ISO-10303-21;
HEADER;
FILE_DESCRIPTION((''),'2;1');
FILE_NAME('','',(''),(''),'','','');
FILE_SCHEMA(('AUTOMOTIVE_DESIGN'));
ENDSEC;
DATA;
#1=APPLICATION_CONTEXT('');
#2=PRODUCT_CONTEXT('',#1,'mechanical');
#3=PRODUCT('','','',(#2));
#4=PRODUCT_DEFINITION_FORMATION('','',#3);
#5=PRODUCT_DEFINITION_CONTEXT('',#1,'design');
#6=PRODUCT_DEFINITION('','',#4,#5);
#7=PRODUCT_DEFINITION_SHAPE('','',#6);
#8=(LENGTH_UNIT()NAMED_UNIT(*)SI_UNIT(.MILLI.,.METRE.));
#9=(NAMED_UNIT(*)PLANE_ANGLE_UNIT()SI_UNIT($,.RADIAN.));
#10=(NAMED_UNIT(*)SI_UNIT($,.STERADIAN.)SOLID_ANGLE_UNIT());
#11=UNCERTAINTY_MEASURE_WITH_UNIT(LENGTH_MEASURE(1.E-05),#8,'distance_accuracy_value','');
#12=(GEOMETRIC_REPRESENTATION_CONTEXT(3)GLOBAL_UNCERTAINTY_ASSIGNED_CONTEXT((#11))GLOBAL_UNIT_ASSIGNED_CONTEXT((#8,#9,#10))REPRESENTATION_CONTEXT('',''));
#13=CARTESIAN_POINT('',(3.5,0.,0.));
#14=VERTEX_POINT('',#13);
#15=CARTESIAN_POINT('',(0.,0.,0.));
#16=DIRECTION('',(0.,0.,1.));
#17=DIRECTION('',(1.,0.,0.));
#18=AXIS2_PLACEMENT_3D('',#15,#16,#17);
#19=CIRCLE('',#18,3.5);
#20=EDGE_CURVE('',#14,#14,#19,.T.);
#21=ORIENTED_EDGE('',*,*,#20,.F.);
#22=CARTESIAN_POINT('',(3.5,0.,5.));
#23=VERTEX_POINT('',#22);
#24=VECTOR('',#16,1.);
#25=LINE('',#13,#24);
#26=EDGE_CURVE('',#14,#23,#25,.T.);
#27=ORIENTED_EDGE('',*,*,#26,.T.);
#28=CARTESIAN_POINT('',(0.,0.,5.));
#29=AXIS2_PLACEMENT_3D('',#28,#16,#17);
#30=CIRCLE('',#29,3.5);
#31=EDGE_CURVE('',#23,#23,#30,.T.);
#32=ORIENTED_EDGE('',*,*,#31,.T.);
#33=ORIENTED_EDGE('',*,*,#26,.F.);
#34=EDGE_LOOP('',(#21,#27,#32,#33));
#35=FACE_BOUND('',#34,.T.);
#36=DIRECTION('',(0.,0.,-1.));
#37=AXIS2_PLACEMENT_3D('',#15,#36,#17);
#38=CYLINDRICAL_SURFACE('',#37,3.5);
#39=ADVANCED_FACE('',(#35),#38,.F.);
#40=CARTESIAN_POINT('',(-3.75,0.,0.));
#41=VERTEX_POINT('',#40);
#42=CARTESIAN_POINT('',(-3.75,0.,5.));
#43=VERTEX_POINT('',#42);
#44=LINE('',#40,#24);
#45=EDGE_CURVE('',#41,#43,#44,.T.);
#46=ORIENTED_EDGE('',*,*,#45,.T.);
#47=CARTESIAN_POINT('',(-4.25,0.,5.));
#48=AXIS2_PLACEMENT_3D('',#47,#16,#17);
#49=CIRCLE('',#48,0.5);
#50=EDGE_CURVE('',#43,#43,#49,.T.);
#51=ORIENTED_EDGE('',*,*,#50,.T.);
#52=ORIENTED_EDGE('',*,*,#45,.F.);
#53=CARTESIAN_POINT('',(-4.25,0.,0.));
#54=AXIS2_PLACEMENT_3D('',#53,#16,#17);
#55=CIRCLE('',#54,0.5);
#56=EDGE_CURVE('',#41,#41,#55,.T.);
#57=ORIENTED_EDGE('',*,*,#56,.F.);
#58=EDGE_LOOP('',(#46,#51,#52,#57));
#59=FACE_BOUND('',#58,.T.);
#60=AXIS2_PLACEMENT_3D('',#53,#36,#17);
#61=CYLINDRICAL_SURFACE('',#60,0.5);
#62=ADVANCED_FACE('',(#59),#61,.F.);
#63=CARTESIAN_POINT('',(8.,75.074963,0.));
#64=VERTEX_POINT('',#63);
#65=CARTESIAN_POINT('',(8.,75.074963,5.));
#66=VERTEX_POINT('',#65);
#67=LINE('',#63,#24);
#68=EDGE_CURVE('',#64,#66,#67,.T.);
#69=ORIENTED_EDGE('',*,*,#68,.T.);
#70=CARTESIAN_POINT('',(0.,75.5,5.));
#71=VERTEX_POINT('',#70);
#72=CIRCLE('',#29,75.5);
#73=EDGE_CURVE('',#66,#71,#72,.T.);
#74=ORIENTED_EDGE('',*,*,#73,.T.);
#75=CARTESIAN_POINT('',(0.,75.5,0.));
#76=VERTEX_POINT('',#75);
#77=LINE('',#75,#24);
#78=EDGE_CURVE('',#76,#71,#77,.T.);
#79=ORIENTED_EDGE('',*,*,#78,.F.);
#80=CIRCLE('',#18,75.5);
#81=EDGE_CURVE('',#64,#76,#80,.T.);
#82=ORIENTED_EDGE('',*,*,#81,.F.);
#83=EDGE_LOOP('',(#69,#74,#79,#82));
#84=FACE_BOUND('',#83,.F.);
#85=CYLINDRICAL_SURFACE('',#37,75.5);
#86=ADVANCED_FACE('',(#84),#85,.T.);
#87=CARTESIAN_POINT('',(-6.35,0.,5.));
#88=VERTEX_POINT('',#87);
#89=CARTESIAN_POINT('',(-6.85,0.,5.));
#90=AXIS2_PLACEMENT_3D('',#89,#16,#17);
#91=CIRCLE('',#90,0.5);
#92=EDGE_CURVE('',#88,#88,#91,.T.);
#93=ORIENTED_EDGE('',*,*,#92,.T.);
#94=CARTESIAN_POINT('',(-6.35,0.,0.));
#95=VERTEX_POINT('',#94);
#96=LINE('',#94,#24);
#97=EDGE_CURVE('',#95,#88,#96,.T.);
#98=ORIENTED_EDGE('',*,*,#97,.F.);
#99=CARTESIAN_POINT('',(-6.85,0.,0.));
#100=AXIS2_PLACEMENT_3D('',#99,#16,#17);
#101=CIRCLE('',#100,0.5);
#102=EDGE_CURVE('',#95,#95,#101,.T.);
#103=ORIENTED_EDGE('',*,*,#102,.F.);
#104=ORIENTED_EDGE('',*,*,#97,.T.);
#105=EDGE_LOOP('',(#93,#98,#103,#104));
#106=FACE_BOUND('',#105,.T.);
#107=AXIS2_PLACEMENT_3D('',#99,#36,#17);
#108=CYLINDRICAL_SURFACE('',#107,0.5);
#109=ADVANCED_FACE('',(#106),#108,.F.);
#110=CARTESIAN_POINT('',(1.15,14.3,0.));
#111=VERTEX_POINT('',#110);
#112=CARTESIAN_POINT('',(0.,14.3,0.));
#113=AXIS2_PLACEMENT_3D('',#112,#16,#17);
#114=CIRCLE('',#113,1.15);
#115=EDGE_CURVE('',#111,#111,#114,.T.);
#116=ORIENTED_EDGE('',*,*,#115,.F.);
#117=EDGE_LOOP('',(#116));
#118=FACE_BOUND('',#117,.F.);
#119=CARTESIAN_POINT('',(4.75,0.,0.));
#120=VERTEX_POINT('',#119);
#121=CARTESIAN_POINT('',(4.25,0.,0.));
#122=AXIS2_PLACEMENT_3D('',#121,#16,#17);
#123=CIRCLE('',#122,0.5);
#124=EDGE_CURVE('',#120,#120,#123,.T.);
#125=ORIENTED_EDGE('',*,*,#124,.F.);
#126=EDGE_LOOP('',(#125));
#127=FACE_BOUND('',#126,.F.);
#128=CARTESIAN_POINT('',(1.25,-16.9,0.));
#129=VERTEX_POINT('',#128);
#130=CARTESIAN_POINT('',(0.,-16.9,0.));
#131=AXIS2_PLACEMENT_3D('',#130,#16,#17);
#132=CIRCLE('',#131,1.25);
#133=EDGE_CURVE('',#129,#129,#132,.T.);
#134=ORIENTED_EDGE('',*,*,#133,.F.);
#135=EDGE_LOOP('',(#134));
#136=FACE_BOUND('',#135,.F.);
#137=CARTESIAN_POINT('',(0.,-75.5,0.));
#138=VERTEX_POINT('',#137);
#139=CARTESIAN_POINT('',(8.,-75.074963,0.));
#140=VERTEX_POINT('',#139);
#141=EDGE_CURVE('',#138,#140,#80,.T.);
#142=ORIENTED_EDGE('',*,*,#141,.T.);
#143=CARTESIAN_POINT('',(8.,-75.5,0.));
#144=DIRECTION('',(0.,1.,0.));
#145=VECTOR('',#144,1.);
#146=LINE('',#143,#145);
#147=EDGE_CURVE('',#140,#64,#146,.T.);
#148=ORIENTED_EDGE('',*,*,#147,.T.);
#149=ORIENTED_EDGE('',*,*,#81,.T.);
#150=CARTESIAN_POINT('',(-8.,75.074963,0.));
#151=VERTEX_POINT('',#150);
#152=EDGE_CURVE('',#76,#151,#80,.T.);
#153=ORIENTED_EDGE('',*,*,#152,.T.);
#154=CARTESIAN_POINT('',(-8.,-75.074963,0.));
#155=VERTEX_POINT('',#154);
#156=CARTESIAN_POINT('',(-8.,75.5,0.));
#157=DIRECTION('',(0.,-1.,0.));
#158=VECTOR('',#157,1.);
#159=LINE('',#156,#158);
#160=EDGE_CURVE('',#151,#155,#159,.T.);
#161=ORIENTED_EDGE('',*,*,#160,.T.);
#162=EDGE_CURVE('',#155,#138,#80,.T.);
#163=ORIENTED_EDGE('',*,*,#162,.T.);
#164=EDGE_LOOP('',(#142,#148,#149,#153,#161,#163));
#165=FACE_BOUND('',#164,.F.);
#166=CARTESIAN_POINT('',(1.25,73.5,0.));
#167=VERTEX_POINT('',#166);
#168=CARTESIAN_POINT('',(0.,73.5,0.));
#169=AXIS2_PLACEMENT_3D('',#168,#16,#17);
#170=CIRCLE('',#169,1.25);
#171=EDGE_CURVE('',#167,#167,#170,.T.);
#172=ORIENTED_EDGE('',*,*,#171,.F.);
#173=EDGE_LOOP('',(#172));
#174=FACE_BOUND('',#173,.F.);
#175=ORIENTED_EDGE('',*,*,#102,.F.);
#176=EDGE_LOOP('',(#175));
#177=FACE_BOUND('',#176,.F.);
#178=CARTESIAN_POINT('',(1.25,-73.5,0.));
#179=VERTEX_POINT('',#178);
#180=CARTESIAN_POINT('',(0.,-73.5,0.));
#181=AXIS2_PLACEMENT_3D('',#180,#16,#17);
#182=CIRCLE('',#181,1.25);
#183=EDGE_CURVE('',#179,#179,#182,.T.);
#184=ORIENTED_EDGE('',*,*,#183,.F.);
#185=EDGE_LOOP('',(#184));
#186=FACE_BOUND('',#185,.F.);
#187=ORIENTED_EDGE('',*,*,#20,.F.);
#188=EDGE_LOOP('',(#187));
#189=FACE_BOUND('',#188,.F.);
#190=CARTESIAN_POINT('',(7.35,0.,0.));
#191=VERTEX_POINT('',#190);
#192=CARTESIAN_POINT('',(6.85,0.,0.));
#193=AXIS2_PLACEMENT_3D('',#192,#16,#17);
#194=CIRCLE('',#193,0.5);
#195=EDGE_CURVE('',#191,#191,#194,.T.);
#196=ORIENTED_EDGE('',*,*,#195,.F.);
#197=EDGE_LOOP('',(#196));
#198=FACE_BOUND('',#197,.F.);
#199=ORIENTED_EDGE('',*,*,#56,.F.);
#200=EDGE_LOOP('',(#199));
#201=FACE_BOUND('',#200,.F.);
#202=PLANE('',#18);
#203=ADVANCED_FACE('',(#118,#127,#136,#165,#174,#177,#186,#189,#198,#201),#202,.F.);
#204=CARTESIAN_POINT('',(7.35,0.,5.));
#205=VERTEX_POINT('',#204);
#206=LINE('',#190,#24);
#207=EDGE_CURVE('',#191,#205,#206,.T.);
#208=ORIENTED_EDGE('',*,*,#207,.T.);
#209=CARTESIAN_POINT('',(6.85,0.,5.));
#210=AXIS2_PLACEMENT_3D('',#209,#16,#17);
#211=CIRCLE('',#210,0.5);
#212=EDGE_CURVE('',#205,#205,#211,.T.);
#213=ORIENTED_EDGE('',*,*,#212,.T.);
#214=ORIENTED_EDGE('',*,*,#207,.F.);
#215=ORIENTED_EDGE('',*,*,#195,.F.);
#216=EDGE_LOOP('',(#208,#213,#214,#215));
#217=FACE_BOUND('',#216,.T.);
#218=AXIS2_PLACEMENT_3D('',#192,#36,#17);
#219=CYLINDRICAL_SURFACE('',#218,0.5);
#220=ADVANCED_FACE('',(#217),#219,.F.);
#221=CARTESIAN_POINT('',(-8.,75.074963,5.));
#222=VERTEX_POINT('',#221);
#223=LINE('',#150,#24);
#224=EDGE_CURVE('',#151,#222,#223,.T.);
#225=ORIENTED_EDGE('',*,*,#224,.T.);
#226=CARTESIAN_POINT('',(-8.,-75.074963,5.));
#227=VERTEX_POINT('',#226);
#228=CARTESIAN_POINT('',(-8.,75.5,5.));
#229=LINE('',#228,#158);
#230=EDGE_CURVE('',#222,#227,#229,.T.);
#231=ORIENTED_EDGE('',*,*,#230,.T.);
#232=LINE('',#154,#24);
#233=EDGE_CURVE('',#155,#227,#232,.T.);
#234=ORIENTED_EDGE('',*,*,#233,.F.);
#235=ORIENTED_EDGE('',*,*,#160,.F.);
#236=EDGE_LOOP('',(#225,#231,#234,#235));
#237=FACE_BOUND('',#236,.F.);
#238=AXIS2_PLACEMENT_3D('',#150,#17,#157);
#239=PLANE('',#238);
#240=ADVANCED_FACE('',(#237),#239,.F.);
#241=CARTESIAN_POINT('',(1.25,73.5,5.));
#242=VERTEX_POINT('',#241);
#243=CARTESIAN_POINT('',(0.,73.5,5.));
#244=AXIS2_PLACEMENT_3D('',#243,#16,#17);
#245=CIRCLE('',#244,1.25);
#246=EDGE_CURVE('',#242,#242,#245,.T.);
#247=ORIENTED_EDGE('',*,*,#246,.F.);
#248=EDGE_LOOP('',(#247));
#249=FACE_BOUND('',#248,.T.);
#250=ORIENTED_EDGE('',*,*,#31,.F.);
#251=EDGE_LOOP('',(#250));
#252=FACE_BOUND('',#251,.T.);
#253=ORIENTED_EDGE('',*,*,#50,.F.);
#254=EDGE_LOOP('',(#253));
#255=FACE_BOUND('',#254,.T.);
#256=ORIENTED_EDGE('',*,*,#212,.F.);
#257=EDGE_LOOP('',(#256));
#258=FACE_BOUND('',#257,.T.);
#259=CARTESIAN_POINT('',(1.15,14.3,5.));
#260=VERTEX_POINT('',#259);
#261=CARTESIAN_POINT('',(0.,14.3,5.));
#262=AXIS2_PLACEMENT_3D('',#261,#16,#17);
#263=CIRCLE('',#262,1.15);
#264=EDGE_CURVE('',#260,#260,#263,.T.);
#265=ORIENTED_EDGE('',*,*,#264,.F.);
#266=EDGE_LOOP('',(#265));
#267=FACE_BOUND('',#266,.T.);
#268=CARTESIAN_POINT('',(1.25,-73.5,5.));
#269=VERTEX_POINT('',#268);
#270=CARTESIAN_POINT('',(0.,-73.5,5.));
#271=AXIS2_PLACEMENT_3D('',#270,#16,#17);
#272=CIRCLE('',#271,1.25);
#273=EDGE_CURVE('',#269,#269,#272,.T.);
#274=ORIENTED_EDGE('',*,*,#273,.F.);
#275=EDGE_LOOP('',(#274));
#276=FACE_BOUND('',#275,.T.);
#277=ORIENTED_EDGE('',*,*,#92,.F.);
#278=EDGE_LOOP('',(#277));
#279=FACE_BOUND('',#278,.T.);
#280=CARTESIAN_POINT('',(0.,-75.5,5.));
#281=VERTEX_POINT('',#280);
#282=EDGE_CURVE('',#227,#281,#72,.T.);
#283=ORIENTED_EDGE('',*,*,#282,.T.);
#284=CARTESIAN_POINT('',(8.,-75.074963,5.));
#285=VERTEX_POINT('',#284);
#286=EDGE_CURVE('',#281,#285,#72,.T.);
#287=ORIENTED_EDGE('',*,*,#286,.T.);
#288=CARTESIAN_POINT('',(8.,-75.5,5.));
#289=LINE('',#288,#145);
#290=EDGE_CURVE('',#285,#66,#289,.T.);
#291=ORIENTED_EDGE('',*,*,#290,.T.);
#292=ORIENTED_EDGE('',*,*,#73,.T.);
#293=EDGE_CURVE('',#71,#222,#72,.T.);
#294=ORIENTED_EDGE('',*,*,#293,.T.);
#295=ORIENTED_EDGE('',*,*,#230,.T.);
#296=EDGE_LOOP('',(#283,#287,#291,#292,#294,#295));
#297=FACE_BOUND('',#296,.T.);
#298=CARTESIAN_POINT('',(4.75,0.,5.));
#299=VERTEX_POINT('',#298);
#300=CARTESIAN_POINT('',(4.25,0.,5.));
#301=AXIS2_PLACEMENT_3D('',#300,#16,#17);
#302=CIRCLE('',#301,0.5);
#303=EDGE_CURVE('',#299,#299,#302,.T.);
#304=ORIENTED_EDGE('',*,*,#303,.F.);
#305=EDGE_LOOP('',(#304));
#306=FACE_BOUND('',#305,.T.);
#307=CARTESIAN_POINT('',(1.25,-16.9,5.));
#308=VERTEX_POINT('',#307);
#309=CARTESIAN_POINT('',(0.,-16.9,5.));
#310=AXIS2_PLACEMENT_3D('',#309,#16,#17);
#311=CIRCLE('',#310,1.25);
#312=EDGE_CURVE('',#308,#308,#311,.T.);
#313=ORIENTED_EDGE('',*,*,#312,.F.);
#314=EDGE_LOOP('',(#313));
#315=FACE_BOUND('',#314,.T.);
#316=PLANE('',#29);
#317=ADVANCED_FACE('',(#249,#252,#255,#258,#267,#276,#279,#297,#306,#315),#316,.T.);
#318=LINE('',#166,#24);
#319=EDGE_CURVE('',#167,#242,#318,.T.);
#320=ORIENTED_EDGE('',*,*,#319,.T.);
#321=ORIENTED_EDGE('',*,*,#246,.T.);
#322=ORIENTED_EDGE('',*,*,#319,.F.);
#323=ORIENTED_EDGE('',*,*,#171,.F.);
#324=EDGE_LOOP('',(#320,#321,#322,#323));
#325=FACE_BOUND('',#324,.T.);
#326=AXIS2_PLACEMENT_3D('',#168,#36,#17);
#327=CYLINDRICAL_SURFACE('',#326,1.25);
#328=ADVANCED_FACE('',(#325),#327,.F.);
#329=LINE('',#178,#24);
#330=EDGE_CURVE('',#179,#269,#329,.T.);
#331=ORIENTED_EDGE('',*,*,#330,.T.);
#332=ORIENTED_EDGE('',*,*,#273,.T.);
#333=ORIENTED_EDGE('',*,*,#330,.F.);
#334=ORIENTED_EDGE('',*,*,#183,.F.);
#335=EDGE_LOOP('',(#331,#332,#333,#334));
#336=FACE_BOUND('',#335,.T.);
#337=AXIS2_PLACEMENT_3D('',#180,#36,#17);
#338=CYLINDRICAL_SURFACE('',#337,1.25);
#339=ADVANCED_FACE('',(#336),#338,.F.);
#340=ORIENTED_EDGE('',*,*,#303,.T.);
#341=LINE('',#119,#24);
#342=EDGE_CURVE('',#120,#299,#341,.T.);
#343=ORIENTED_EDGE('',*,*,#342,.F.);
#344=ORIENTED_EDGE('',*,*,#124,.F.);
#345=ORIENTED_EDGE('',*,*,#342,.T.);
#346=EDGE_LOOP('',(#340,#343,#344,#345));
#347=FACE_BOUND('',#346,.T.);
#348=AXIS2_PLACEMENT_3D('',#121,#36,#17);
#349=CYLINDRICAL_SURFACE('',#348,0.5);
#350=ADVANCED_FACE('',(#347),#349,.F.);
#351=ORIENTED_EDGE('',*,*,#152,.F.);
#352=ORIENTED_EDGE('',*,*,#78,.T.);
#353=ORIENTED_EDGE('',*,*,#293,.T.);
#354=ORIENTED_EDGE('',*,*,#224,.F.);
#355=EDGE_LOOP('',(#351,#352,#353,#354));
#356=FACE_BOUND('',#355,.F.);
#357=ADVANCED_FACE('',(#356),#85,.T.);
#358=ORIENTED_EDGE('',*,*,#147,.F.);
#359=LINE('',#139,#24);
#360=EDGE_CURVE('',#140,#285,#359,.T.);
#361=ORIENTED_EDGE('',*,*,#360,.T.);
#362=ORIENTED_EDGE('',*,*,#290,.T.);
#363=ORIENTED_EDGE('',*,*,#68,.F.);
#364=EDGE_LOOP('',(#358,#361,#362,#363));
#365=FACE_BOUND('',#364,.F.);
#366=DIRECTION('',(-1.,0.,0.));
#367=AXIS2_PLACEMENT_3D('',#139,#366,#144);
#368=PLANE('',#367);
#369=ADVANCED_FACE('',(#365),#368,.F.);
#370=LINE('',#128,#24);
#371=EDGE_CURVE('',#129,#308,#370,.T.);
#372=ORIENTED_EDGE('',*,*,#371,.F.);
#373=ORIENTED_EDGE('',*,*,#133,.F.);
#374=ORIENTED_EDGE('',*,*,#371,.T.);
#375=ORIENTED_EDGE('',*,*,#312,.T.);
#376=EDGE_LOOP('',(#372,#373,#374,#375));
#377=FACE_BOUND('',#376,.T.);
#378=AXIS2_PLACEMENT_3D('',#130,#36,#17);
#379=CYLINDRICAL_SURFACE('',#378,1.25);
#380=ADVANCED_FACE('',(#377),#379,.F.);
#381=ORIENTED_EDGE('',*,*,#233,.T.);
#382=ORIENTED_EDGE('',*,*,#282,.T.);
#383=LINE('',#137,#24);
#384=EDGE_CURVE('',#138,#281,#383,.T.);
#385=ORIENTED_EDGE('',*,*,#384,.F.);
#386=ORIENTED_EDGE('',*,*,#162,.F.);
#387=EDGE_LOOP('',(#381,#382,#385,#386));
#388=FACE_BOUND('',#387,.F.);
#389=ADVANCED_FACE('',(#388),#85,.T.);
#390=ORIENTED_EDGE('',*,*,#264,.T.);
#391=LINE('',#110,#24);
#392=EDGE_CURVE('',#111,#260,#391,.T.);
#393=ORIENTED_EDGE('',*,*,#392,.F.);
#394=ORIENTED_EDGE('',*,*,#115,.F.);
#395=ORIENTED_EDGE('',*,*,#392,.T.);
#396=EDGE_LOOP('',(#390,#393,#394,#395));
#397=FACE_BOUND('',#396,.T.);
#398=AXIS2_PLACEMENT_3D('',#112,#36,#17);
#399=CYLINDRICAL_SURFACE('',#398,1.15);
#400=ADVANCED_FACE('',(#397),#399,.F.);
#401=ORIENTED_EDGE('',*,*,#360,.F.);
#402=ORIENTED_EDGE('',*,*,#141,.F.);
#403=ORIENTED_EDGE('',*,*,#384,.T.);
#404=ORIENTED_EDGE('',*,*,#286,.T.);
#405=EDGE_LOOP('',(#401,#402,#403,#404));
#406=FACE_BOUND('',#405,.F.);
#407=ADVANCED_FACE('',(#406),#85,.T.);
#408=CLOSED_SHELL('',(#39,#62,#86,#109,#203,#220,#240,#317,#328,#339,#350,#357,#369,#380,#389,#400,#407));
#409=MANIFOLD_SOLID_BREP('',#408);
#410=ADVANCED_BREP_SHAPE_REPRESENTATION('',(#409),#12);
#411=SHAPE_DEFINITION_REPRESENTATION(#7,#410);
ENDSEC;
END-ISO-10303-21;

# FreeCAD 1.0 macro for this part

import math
import FreeCAD as App
import Part
import Sketcher
from FreeCAD import Vector

doc = App.newDocument("Part")
params = doc.addObject("Spreadsheet::Sheet", "Params")
for row, (alias, value) in enumerate([
    ("sketch1_diameter", "1 mm"),
    ("sketch1_diameter2", "7 mm"),
    ("sketch1_diameter3", "2.5 mm"),
    ("sketch1_diameter4", "2.3 mm"),
    ("sketch1_radius", "75.5 mm"),
    ("pad1_length", "5 mm"),
], start=1):
    params.set(f"A{row}", alias)
    params.set(f"B{row}", "=" + value)
    params.setAlias(f"B{row}", alias)

body = doc.addObject("PartDesign::Body", "Body")

# Sketch on XY plane
sketch1 = body.newObject("Sketcher::SketchObject", "Sketch")
sketch1.AttachmentSupport = (doc.getObject("XY_Plane"), [""])
sketch1.MapMode = "FlatFace"
sketch1.addGeometry(Part.ArcOfCircle(Part.Circle(Vector(0, 0, 0), Vector(0, 0, 1), 75.5), math.radians(-96.08), math.radians(-83.92)), False)
sketch1.addGeometry(Part.LineSegment(Vector(8, -75.1, 0), Vector(8, 75.1, 0)), False)
sketch1.addGeometry(Part.ArcOfCircle(Part.Circle(Vector(0, 0, 0), Vector(0, 0, 1), 75.5), math.radians(83.92), math.radians(96.08)), False)
sketch1.addGeometry(Part.LineSegment(Vector(-8, 75.1, 0), Vector(-8, -75.1, 0)), False)
sketch1.addGeometry(Part.Circle(Vector(0, -73.5, 0), Vector(0, 0, 1), 1.2), False)
sketch1.addGeometry(Part.Circle(Vector(0, -16.9, 0), Vector(0, 0, 1), 1.2), False)
sketch1.addGeometry(Part.Circle(Vector(-6.8, 0, 0), Vector(0, 0, 1), 0.5), False)
sketch1.addGeometry(Part.Circle(Vector(-4.2, 0, 0), Vector(0, 0, 1), 0.5), False)
sketch1.addGeometry(Part.Circle(Vector(0, 0, 0), Vector(0, 0, 1), 3.5), False)
sketch1.addGeometry(Part.Circle(Vector(4.2, 0, 0), Vector(0, 0, 1), 0.5), False)
sketch1.addGeometry(Part.Circle(Vector(6.8, 0, 0), Vector(0, 0, 1), 0.5), False)
sketch1.addGeometry(Part.Circle(Vector(0, 14.3, 0), Vector(0, 0, 1), 1.1), False)
sketch1.addGeometry(Part.Circle(Vector(0, 73.5, 0), Vector(0, 0, 1), 1.2), False)
sketch1.addConstraint(Sketcher.Constraint("Coincident", 0, 2, 1, 1))
sketch1.addConstraint(Sketcher.Constraint("Coincident", 1, 2, 2, 1))
sketch1.addConstraint(Sketcher.Constraint("Coincident", 2, 2, 3, 1))
sketch1.addConstraint(Sketcher.Constraint("Coincident", 3, 2, 0, 1))
sketch1.addConstraint(Sketcher.Constraint("Vertical", 1))
sketch1.addConstraint(Sketcher.Constraint("Vertical", 3))
sketch1.addConstraint(Sketcher.Constraint("Coincident", 0, 3, -1, 1))
sketch1.addConstraint(Sketcher.Constraint("Coincident", 2, 3, -1, 1))
sketch1.addConstraint(Sketcher.Constraint("Coincident", 8, 3, -1, 1))
sketch1.addConstraint(Sketcher.Constraint("Equal", 0, 2))
sketch1.addConstraint(Sketcher.Constraint("Equal", 4, 5))
sketch1.addConstraint(Sketcher.Constraint("Equal", 6, 7))
sketch1.addConstraint(Sketcher.Constraint("Equal", 7, 9))
sketch1.addConstraint(Sketcher.Constraint("Equal", 9, 10))
sketch1.addConstraint(Sketcher.Constraint("Equal", 5, 12))
sketch1.addConstraint(Sketcher.Constraint("Symmetric", 7, 3, 9, 3, -1, 1))
sketch1.addConstraint(Sketcher.Constraint("Symmetric", 6, 3, 10, 3, -1, 1))
sketch1.addConstraint(Sketcher.Constraint("Symmetric", 4, 3, 12, 3, -1, 1))
sketch1.addConstraint(Sketcher.Constraint("PointOnObject", 4, 3, -2))
sketch1.addConstraint(Sketcher.Constraint("PointOnObject", 5, 3, -2))
sketch1.addConstraint(Sketcher.Constraint("PointOnObject", 6, 3, -1))
sketch1.addConstraint(Sketcher.Constraint("PointOnObject", 7, 3, -1))
sketch1.addConstraint(Sketcher.Constraint("PointOnObject", 11, 3, -2))
sketch1.addConstraint(Sketcher.Constraint("Horizontal", 1, 2, 2, 2))
sketch1.addConstraint(Sketcher.Constraint("Diameter", 6, 1.0))
sketch1.addConstraint(Sketcher.Constraint("Diameter", 8, 7.0))
sketch1.addConstraint(Sketcher.Constraint("Diameter", 4, 2.5))
sketch1.addConstraint(Sketcher.Constraint("Diameter", 11, 2.3))
sketch1.addConstraint(Sketcher.Constraint("Radius", 0, 75.5))
sketch1.addConstraint(Sketcher.Constraint("DistanceX", 2, 2, 1, 2, 16.0))
sketch1.addConstraint(Sketcher.Constraint("DistanceY", 4, 3, -1, 1, 73.5))
sketch1.addConstraint(Sketcher.Constraint("DistanceY", 5, 3, -1, 1, 16.9))
sketch1.addConstraint(Sketcher.Constraint("DistanceY", -1, 1, 11, 3, 14.3))
sketch1.addConstraint(Sketcher.Constraint("DistanceX", 7, 3, 9, 3, 8.5))
sketch1.addConstraint(Sketcher.Constraint("DistanceX", 6, 3, 7, 3, 2.6))
sketch1.setExpression("Constraints[24]", "Params.sketch1_diameter")
sketch1.setExpression("Constraints[25]", "Params.sketch1_diameter2")
sketch1.setExpression("Constraints[26]", "Params.sketch1_diameter3")
sketch1.setExpression("Constraints[27]", "Params.sketch1_diameter4")
sketch1.setExpression("Constraints[28]", "Params.sketch1_radius")
pad1 = body.newObject("PartDesign::Pad", "Pad")
pad1.Profile = sketch1
pad1.setExpression("Length", "Params.pad1_length")

doc.recompute()
